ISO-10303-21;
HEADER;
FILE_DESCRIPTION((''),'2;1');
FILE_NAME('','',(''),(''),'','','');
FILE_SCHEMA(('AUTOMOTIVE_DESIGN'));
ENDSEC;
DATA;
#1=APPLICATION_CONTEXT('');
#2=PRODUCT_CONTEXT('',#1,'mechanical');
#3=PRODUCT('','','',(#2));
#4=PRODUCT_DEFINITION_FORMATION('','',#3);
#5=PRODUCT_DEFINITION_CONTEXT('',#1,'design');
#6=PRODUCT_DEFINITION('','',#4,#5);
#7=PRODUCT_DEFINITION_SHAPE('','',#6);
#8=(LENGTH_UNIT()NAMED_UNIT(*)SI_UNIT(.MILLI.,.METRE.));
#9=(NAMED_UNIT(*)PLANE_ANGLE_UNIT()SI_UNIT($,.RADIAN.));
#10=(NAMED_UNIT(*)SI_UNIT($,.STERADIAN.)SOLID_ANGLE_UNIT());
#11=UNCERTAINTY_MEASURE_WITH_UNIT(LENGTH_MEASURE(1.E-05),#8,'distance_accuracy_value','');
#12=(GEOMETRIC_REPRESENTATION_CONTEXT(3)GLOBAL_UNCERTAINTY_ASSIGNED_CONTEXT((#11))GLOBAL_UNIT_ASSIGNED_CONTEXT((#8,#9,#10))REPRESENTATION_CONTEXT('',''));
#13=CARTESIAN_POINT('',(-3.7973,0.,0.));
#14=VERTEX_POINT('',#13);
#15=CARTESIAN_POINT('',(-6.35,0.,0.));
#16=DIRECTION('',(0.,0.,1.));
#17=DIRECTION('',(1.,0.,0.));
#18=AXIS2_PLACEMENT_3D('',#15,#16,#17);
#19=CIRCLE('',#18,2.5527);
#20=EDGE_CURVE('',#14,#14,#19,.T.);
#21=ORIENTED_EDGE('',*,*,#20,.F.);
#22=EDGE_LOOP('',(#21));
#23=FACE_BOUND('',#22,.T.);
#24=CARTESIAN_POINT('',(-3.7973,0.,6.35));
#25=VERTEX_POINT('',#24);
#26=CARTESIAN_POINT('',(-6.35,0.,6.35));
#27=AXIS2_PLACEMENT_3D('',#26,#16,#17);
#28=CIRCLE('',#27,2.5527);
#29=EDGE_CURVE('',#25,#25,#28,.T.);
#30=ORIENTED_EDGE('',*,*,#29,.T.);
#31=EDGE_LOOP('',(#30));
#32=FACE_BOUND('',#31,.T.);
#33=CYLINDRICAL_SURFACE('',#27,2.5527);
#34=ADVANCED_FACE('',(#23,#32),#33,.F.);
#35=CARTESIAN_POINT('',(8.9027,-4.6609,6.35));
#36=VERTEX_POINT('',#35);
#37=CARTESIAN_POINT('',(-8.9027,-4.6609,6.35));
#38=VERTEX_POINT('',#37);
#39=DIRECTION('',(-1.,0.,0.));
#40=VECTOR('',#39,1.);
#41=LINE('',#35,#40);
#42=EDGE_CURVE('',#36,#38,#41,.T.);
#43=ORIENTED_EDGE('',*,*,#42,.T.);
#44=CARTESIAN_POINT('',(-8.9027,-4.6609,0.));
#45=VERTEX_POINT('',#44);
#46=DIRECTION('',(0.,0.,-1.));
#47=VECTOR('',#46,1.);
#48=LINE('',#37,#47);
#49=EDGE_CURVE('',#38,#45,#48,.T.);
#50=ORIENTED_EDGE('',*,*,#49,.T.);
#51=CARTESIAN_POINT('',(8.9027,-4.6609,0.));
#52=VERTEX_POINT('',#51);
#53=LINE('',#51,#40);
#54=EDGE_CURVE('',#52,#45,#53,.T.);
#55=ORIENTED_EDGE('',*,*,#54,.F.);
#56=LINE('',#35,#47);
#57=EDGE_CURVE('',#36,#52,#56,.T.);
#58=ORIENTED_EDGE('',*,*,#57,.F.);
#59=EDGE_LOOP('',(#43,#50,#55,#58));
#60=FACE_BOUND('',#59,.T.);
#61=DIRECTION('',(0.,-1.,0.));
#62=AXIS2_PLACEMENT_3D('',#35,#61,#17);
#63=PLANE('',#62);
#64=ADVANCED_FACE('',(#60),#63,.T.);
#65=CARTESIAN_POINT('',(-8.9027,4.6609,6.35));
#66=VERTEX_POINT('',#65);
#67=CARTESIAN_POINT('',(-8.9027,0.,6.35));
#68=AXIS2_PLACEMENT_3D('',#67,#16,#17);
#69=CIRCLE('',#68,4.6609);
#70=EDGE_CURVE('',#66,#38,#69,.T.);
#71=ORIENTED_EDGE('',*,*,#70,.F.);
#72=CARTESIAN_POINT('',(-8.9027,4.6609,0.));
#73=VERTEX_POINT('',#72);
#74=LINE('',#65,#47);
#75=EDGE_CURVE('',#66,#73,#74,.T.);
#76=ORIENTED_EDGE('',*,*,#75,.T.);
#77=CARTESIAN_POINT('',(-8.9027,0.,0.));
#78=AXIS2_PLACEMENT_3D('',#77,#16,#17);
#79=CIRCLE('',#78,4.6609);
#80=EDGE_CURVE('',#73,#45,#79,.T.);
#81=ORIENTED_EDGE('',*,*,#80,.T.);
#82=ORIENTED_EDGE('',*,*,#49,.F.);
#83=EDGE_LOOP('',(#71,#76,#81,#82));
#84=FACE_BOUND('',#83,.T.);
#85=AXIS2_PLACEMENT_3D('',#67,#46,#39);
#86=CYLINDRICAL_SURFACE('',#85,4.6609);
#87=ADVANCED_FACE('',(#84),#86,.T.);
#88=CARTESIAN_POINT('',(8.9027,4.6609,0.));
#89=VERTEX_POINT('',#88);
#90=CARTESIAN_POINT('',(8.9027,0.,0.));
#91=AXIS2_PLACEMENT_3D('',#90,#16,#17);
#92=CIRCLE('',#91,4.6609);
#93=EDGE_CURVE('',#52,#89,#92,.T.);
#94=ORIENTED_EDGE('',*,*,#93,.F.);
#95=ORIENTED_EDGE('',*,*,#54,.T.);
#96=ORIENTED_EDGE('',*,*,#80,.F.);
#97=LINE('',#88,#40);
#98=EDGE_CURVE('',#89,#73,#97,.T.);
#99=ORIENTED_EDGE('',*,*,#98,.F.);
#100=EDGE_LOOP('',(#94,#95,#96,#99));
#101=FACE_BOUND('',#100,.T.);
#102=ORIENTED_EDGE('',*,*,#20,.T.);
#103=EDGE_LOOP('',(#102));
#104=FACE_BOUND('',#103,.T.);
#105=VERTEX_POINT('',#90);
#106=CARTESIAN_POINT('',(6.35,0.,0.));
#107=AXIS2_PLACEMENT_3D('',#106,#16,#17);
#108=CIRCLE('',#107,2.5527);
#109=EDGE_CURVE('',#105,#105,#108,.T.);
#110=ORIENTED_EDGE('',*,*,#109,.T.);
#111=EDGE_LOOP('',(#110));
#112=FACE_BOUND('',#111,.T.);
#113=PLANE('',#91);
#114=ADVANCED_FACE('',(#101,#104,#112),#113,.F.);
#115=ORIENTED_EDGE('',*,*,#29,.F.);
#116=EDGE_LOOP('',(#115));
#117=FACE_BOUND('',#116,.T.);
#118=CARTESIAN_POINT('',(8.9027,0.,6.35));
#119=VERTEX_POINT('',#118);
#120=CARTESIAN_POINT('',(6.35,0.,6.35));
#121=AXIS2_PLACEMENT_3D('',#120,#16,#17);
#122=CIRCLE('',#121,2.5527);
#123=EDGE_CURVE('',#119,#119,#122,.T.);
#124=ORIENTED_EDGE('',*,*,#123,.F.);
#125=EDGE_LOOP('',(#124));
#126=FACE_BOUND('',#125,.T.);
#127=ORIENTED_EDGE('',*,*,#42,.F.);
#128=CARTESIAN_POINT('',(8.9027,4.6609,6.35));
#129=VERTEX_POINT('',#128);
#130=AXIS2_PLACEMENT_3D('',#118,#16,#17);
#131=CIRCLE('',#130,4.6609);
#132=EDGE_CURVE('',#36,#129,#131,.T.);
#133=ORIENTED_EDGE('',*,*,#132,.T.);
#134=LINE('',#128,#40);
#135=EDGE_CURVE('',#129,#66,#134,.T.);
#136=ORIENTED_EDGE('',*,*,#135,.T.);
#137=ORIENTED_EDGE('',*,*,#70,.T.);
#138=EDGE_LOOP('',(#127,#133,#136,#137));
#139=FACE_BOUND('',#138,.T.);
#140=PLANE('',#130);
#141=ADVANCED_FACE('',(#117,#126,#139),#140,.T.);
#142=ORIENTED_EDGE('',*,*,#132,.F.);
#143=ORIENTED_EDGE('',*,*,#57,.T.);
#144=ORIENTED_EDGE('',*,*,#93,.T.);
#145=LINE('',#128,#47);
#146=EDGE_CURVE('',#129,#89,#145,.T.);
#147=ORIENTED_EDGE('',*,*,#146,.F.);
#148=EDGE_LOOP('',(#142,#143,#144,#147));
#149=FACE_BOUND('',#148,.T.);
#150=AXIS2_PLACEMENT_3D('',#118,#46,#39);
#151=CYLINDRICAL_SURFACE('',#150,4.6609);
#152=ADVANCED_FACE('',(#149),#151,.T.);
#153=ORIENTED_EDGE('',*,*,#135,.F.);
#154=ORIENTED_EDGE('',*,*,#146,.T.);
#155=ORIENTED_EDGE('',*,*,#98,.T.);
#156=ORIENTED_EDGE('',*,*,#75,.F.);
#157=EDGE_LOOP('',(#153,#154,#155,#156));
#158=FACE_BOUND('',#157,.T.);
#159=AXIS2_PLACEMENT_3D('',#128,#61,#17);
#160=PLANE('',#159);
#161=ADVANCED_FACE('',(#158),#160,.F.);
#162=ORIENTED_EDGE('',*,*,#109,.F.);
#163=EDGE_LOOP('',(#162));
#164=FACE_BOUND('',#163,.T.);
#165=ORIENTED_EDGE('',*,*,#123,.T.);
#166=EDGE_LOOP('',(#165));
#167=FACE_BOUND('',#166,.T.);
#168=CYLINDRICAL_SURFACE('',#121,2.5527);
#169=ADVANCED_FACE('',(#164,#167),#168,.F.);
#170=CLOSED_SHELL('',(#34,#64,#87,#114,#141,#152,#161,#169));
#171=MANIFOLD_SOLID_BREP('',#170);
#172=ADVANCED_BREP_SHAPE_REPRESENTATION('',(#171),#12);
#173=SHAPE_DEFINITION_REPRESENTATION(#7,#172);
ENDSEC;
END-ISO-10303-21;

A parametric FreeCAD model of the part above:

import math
import FreeCAD as App
import Part
import Sketcher
from FreeCAD import Vector
Q = App.Units.Quantity

doc = App.newDocument("Part")
body = doc.addObject("PartDesign::Body", "Body")

# Sketch on XY plane
sketch1 = body.newObject("Sketcher::SketchObject", "Sketch")
sketch1.AttachmentSupport = (doc.getObject("XY_Plane"), [""])
sketch1.MapMode = "FlatFace"
sketch1.addGeometry([
    Part.LineSegment(Vector(-8.9027, -4.6609, 0), Vector(8.9027, -4.6609, 0)),
    Part.ArcOfCircle(Part.Circle(Vector(8.9027, 0, 0), Vector(0, 0, 1), 4.6609), math.radians(-90), math.radians(90)),
    Part.LineSegment(Vector(8.9027, 4.6609, 0), Vector(-8.9027, 4.6609, 0)),
    Part.ArcOfCircle(Part.Circle(Vector(-8.9027, 0, 0), Vector(0, 0, 1), 4.6609), math.radians(90), math.radians(270)),
], False)
sketch1.addConstraint([
    Sketcher.Constraint("Tangent", 0, 2, 1, 1),
    Sketcher.Constraint("Tangent", 1, 2, 2, 1),
    Sketcher.Constraint("Tangent", 2, 2, 3, 1),
    Sketcher.Constraint("Tangent", 3, 2, 0, 1),
    Sketcher.Constraint("Horizontal", 0),
    Sketcher.Constraint("Horizontal", 2),
    Sketcher.Constraint("Symmetric", 1, 3, 3, 3, -1, 1),
    Sketcher.Constraint("Radius", 1, Q("0.1835 in")),
    Sketcher.Constraint("DistanceX", 0, 1, 0, 2, Q("0.701 in")),
])
pad1 = body.newObject("PartDesign::Pad", "Pad")
pad1.Profile = sketch1
pad1.Length = Q("0.25 in")

# Sketch on XY plane
sketch2 = body.newObject("Sketcher::SketchObject", "Sketch001")
sketch2.AttachmentSupport = (doc.getObject("XY_Plane"), [""])
sketch2.MapMode = "FlatFace"
sketch2.AttachmentOffset = App.Placement(Vector(0, 0, 0.25 * 25.4), App.Rotation())
sketch2.addGeometry([
    Part.Circle(Vector(-6.35, 0, 0), Vector(0, 0, 1), 2.5527),
    Part.Circle(Vector(6.35, 0, 0), Vector(0, 0, 1), 2.5527),
], False)
sketch2.addConstraint([
    Sketcher.Constraint("Equal", 0, 1),
    Sketcher.Constraint("Symmetric", 0, 3, 1, 3, -1, 1),
    Sketcher.Constraint("PointOnObject", 0, 3, -1),
    Sketcher.Constraint("Diameter", 0, Q("0.201 in")),
    Sketcher.Constraint("DistanceX", 0, 3, 1, 3, Q("0.5 in")),
])
doc.recompute()
hole = body.newObject("PartDesign::Hole", "Hole")
hole.Profile = sketch2
hole.ThreadType = "None"
hole.Diameter = Q("0.201 in")
hole.DepthType = "ThroughAll"

doc.recompute()
